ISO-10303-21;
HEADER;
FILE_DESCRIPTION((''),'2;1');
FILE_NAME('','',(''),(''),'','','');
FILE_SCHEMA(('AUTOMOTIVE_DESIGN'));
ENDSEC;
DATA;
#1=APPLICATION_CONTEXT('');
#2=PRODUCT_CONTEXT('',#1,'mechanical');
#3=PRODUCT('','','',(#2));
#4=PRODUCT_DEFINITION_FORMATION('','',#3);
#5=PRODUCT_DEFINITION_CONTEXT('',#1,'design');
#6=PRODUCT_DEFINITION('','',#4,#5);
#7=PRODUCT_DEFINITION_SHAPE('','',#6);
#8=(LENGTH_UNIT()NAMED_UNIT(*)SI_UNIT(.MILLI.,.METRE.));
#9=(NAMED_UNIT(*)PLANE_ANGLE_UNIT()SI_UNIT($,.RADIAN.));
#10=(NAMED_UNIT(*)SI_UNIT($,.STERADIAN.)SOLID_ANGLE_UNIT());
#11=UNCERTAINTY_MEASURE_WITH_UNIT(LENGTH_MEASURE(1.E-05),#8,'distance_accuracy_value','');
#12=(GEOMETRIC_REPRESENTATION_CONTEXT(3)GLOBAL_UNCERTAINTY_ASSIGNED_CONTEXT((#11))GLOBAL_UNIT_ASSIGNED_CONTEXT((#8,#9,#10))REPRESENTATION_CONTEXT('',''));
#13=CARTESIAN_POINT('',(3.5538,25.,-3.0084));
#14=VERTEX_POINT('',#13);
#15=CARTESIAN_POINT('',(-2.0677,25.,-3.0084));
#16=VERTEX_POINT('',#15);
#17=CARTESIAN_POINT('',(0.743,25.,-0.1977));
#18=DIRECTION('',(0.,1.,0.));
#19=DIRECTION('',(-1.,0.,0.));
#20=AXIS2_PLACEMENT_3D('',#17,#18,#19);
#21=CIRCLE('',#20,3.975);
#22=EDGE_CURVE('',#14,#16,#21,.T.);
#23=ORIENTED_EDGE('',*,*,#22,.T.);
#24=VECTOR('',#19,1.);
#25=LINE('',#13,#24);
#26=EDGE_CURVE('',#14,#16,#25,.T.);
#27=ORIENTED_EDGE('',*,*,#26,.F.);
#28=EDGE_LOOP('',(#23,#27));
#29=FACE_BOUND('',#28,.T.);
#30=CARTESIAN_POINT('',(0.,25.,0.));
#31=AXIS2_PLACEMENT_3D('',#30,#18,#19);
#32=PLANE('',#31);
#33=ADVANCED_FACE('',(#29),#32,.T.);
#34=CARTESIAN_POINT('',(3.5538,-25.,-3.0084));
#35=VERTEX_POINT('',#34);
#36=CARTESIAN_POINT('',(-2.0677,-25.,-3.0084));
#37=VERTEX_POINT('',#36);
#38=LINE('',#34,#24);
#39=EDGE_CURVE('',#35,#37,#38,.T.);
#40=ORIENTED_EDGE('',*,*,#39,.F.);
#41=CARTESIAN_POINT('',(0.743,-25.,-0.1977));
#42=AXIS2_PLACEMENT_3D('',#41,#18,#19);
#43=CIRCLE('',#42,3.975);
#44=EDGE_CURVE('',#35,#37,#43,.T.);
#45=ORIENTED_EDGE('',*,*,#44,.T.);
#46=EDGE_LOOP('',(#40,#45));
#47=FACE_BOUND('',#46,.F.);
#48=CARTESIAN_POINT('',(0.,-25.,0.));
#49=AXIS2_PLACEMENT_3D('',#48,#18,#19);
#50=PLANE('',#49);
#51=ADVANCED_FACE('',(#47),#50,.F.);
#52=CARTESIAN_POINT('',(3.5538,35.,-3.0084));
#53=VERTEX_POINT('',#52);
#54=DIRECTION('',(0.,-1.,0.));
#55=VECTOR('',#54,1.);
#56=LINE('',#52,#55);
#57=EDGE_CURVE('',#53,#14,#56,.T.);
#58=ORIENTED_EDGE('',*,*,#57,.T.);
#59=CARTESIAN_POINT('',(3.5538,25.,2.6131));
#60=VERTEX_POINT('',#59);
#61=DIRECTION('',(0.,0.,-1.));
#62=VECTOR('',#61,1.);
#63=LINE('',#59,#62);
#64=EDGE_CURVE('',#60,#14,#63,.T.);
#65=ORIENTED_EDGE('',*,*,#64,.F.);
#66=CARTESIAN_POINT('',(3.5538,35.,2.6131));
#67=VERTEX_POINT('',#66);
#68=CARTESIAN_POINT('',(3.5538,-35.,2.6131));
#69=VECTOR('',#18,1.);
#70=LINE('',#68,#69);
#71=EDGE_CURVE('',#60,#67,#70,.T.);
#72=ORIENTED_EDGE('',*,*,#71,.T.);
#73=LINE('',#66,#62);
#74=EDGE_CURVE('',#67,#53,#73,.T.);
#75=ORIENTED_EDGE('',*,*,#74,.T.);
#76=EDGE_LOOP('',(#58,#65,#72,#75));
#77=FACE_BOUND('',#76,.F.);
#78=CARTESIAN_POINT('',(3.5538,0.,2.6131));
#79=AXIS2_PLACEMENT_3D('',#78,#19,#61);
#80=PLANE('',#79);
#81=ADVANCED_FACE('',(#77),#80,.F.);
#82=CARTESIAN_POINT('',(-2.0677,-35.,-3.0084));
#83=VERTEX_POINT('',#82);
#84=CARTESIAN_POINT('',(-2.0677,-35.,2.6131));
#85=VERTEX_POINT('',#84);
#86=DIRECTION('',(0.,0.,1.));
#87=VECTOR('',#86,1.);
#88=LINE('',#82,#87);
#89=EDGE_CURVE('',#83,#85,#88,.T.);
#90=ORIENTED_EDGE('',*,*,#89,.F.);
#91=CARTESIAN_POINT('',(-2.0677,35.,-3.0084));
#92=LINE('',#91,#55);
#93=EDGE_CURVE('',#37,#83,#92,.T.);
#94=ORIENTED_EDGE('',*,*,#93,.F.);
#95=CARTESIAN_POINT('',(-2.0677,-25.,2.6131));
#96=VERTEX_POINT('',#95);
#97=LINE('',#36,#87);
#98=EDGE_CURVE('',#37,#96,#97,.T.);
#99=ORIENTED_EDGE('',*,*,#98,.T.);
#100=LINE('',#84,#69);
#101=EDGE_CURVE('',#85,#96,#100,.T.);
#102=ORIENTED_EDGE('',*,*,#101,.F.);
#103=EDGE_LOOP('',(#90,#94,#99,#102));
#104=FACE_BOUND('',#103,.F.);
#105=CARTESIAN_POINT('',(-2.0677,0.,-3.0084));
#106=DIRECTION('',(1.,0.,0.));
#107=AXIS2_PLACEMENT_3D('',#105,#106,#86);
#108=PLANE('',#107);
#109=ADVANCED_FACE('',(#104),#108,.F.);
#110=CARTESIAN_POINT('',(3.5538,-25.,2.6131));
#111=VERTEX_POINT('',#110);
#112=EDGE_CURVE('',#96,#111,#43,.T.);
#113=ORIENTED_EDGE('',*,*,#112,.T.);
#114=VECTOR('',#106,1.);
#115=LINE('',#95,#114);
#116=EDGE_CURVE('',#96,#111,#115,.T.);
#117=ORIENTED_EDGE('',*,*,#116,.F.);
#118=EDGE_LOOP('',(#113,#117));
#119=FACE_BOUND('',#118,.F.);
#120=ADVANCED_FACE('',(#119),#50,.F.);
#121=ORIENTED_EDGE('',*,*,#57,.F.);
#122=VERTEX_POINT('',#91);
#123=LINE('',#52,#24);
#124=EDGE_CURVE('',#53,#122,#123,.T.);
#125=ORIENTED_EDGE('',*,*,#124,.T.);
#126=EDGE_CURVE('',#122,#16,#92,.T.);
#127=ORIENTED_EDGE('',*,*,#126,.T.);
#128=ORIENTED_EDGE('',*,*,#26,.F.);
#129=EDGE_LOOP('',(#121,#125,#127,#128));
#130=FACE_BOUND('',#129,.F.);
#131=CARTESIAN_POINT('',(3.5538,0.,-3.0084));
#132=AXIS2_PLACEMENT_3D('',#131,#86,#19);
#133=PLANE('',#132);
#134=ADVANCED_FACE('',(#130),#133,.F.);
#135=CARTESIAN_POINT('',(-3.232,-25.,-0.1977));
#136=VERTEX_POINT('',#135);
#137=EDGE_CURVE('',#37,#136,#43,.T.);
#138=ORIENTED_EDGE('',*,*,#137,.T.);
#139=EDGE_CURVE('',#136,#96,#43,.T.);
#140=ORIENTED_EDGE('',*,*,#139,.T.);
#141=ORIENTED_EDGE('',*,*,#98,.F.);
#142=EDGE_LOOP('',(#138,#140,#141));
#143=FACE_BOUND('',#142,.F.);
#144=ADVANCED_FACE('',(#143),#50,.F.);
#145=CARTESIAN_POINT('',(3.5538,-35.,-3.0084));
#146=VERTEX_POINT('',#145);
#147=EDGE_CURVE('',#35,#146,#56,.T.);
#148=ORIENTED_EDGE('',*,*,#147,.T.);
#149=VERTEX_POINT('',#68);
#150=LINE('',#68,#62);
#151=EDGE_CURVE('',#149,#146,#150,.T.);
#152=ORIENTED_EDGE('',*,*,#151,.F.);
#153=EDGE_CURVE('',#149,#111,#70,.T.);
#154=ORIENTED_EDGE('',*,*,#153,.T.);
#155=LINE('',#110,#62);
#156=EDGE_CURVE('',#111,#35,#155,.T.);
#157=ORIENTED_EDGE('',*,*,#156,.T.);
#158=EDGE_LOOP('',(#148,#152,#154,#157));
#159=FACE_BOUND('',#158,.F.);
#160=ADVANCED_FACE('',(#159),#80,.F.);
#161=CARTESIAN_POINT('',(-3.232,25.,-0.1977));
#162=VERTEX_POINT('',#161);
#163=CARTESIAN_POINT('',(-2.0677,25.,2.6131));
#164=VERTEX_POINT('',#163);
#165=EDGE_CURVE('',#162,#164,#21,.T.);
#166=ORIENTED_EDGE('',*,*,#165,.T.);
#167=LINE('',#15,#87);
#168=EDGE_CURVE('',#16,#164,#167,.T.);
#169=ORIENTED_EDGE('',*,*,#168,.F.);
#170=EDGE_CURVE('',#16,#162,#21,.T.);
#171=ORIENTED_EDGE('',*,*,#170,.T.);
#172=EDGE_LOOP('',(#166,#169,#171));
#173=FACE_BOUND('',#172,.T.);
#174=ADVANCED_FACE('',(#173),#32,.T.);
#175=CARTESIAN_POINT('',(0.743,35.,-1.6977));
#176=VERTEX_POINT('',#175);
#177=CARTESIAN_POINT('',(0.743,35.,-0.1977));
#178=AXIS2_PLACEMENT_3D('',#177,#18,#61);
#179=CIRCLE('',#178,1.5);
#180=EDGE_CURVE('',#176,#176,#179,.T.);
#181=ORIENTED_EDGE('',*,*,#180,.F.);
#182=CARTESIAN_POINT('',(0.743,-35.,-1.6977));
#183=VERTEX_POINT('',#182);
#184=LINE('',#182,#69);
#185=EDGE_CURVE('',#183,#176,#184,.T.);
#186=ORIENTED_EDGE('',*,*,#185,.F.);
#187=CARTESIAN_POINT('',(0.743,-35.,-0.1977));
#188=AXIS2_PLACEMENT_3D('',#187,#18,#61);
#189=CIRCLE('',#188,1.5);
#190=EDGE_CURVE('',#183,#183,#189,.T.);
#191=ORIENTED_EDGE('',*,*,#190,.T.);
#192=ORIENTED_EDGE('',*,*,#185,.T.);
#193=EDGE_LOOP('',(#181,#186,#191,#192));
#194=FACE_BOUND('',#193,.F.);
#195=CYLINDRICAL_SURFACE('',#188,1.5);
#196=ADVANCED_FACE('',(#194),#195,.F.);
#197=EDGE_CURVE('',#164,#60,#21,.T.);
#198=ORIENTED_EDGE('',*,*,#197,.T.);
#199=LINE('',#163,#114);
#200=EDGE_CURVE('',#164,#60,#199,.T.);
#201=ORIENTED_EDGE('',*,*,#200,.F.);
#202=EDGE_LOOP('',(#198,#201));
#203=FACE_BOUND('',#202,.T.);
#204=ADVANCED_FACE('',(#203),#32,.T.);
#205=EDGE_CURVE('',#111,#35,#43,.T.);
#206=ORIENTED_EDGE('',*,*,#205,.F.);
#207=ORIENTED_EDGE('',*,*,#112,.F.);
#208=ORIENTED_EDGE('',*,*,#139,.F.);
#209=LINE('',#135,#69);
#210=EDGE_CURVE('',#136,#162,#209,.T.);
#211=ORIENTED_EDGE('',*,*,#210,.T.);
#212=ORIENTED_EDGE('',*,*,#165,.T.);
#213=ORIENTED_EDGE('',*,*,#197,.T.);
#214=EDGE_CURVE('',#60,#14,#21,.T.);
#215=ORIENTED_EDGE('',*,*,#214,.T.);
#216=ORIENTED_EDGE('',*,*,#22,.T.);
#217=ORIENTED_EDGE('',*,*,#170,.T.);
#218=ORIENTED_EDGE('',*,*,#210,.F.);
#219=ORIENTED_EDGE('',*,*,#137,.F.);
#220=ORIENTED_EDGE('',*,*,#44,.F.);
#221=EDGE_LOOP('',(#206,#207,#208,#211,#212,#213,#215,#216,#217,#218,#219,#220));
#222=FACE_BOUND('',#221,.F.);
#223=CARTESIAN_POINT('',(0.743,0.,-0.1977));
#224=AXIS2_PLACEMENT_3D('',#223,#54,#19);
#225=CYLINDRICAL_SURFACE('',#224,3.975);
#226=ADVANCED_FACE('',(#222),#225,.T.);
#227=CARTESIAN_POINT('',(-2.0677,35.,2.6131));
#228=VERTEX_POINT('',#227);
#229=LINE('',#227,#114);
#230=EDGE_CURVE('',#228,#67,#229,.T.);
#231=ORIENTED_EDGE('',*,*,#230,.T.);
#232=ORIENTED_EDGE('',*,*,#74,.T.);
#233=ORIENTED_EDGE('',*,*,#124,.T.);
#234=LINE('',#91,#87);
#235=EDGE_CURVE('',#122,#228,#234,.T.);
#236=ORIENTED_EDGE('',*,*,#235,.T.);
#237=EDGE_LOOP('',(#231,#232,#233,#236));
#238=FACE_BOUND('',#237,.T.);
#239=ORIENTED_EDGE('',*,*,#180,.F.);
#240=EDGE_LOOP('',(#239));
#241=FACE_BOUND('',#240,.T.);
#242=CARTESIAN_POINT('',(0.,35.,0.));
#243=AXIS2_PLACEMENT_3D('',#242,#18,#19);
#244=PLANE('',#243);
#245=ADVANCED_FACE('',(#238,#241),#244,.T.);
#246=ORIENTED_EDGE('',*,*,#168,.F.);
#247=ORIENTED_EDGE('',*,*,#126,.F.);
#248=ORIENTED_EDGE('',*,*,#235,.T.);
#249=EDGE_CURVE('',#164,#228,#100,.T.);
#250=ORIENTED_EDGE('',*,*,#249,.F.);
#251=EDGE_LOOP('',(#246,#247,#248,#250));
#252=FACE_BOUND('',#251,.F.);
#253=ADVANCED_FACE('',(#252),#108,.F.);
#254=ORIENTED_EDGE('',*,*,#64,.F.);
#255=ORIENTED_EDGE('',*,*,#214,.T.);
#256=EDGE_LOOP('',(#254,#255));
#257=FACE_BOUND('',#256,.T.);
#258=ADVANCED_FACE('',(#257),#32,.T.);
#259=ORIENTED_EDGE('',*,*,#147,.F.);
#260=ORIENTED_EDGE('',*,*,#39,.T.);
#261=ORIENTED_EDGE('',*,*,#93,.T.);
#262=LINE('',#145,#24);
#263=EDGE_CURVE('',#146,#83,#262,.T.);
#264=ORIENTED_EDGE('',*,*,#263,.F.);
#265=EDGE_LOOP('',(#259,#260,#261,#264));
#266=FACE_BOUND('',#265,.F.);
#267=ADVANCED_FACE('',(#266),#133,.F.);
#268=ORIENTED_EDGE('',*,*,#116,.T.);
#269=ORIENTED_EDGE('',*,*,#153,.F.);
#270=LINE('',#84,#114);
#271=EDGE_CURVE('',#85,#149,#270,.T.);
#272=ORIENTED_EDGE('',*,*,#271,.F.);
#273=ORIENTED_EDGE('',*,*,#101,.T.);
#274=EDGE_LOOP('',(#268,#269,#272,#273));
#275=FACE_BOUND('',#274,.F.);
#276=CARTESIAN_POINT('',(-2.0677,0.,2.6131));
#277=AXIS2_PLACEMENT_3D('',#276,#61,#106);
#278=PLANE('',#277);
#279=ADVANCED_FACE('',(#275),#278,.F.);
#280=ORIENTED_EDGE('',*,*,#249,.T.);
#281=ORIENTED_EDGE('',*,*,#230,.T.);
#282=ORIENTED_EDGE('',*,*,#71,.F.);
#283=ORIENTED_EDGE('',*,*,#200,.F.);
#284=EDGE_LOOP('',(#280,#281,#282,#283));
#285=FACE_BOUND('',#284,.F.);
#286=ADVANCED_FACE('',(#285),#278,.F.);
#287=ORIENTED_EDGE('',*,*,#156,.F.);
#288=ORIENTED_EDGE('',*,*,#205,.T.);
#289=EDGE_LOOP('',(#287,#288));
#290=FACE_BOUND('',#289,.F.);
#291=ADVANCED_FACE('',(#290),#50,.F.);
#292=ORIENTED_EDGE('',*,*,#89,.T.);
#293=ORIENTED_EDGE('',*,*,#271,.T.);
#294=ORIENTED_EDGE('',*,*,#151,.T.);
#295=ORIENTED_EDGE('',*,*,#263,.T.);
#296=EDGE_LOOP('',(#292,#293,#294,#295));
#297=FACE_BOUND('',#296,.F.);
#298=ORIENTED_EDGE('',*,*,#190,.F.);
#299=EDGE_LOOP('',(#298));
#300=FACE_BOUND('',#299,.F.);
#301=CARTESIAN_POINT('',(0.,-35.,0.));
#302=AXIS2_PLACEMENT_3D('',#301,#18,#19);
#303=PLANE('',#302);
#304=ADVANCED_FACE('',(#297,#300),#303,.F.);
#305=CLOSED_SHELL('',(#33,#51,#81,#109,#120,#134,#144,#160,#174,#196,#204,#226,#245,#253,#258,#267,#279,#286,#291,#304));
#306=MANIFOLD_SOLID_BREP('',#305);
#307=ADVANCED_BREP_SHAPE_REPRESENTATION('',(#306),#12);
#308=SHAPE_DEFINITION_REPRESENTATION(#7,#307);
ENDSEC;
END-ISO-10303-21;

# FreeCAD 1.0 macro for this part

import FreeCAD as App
import Part
import Sketcher

V = App.Vector

doc = App.newDocument("Part")
body = doc.addObject("PartDesign::Body", "Body")

sketch1 = body.newObject("Sketcher::SketchObject", "Sketch")
sketch1.AttachmentSupport = (doc.getObject("XZ_Plane"), [""])
sketch1.MapMode = "FlatFace"
sketch1.addGeometry(Part.Circle(V(0.7, -0.2, 0), V(0, 0, 1), 4), False)
sketch1.addConstraint([
    Sketcher.Constraint("Diameter", 0, 7.95),
    Sketcher.Constraint("DistanceX", -1, 1, 0, 3, 0.743),
    Sketcher.Constraint("DistanceY", 0, 3, -1, 1, 0.1977),
])
pad1 = body.newObject("PartDesign::Pad", "Pad")
pad1.Profile = sketch1
pad1.Length = 50
pad1.Midplane = True

sketch2 = body.newObject("Sketcher::SketchObject", "Sketch001")
sketch2.AttachmentSupport = (doc.getObject("XZ_Plane"), [""])
sketch2.MapMode = "FlatFace"
sketch2.addGeometry([
    Part.LineSegment(V(-2, -3, 0), V(-2, 3, 0)),
    Part.LineSegment(V(-2, 3, 0), V(4, 3, 0)),
    Part.LineSegment(V(4, 3, 0), V(4, -3, 0)),
    Part.LineSegment(V(4, -3, 0), V(-2, -3, 0)),
], False)
sketch2.addConstraint([
    Sketcher.Constraint("Coincident", 0, 2, 1, 1),
    Sketcher.Constraint("Coincident", 1, 2, 2, 1),
    Sketcher.Constraint("Coincident", 2, 2, 3, 1),
    Sketcher.Constraint("Coincident", 3, 2, 0, 1),
    Sketcher.Constraint("Vertical", 0),
    Sketcher.Constraint("Horizontal", 1),
    Sketcher.Constraint("Vertical", 2),
    Sketcher.Constraint("Horizontal", 3),
    Sketcher.Constraint("Equal", 3, 0),
    Sketcher.Constraint("DistanceX", 1, 1, 1, 2, 5.6215),
    Sketcher.Constraint("DistanceY", -1, 1, 0, 2, 2.613),
    Sketcher.Constraint("DistanceX", 0, 2, -1, 1, 2.0677),
])
pad2 = body.newObject("PartDesign::Pad", "Pad001")
pad2.Profile = sketch2
pad2.Length = 70
pad2.Midplane = True

sketch3 = body.newObject("Sketcher::SketchObject", "Sketch002")
sketch3.AttachmentSupport = (doc.getObject("XZ_Plane"), [""])
sketch3.MapMode = "FlatFace"
sketch3.AttachmentOffset = App.Placement(V(0, 0, 35), App.Rotation())
sketch3.addGeometry(Part.Circle(V(0.7, -0.2, 0), V(0, 0, 1), 1.5), False)
sketch3.addConstraint([
    Sketcher.Constraint("Diameter", 0, 3.0),
    Sketcher.Constraint("DistanceX", -1, 1, 0, 3, 0.743),
    Sketcher.Constraint("DistanceY", 0, 3, -1, 1, 0.1977),
])
doc.recompute()
hole = body.newObject("PartDesign::Hole", "Hole")
hole.Profile = sketch3
hole.ThreadType = "None"
hole.Diameter = 3
hole.DepthType = "ThroughAll"

doc.recompute()
